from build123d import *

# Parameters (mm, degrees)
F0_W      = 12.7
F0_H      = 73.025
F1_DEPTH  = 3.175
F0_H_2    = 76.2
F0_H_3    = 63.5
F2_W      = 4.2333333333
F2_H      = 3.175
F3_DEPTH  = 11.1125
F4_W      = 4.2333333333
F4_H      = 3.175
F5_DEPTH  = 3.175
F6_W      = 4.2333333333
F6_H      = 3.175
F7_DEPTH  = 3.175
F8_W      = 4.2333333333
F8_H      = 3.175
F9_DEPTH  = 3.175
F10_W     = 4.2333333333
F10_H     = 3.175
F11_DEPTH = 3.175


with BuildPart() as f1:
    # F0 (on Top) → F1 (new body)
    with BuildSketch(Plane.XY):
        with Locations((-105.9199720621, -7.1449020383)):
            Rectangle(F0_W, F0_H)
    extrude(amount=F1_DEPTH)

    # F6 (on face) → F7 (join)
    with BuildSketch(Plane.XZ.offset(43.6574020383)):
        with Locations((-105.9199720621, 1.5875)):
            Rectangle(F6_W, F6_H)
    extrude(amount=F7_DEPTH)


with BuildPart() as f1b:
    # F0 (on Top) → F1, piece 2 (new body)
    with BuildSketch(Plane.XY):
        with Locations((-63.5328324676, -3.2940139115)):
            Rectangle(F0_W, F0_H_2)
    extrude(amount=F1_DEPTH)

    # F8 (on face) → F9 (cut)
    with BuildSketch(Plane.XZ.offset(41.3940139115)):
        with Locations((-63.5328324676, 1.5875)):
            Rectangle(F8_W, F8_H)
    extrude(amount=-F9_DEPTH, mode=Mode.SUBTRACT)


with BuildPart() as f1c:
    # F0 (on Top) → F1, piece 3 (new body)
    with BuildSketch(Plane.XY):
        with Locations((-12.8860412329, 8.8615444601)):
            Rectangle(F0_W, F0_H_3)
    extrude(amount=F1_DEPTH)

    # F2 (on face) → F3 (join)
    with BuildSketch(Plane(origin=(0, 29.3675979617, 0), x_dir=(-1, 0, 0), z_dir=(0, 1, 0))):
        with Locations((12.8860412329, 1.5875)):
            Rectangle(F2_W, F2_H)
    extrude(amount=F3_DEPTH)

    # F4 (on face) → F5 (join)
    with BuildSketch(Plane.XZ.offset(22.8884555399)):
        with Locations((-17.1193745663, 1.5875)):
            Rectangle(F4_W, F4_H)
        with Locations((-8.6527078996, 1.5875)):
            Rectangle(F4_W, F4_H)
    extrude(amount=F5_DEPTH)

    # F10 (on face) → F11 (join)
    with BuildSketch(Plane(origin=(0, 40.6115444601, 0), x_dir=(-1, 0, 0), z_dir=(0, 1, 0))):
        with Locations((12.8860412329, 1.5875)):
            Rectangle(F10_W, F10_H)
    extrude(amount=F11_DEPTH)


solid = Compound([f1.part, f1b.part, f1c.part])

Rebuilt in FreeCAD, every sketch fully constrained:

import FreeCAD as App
import Part
import Sketcher
Q = App.Units.Quantity


def add_polygon(sketch, points):
    """Adds a closed chain of lines whose ends are joined by coincident constraints."""
    first, n = sketch.GeometryCount, len(points)
    for a, b in zip(points, points[1:] + points[:1]):
        sketch.addGeometry(Part.LineSegment(App.Vector(*a, 0), App.Vector(*b, 0)), False)
    for i in range(n):
        sketch.addConstraint(Sketcher.Constraint("Coincident", first + i, 2, first + (i + 1) % n, 1))

doc = App.newDocument("Part")
params = doc.addObject("Spreadsheet::Sheet", "Params")
for row, (alias, value) in enumerate([
    ("sketch1_width", "0.5 in"),
    ("sketch1_height", "2.875 in"),
    ("pad1_length", "0.125 in"),
    ("sketch2_height", "0.125 in"),
    ("pad2_length", "0.125 in"),
    ("sketch3_height", "3 in"),
    ("sketch3_width", "0.5 in"),
    ("pad3_length", "0.125 in"),
    ("sketch4_height", "0.125 in"),
    ("pocket1_length", "0.125 in"),
    ("sketch5_width", "0.5 in"),
    ("sketch5_height", "2.5 in"),
    ("pad4_length", "0.125 in"),
    ("sketch6_height", "0.125 in"),
    ("pad5_length", "0.4375 in"),
    ("sketch7_height", "0.125 in"),
    ("pad6_length", "0.125 in"),
    ("sketch8_height", "0.125 in"),
    ("pad7_length", "0.125 in"),
], start=1):
    params.set(f"A{row}", alias)
    params.set(f"B{row}", "=" + value)
    params.setAlias(f"B{row}", alias)

body = doc.addObject("PartDesign::Body", "Body")

# Sketch on XY plane
sketch1 = doc.addObject("Sketcher::SketchObject", "Sketch")
body.addObject(sketch1)
sketch1.AttachmentSupport = (doc.XY_Plane, [""])
sketch1.MapMode = "FlatFace"
add_polygon(sketch1, [(-112, 29), (-112, -44), (-100, -44), (-100, 29)])  # lines 0-3
sketch1.addConstraint(Sketcher.Constraint("Vertical", 0))
sketch1.addConstraint(Sketcher.Constraint("Horizontal", 1))
sketch1.addConstraint(Sketcher.Constraint("Vertical", 2))
sketch1.addConstraint(Sketcher.Constraint("Horizontal", 3))
sketch1.addConstraint(Sketcher.Constraint("DistanceX", 1, 1, 1, 2, Q("0.5 in")))
sketch1.addConstraint(Sketcher.Constraint("DistanceY", 0, 2, 0, 1, Q("2.875 in")))
sketch1.addConstraint(Sketcher.Constraint("DistanceX", 0, 2, -1, 1, Q("112.269972 mm")))
sketch1.addConstraint(Sketcher.Constraint("DistanceY", 0, 2, -1, 1, Q("43.657402 mm")))
sketch1.setExpression("Constraints[8]", "Params.sketch1_width")
sketch1.setExpression("Constraints[9]", "Params.sketch1_height")
pad1 = doc.addObject("PartDesign::Pad", "Pad")
body.addObject(pad1)
pad1.Profile = sketch1
pad1.setExpression("Length", "Params.pad1_length")

# Sketch on XZ plane
sketch2 = doc.addObject("Sketcher::SketchObject", "Sketch001")
body.addObject(sketch2)
sketch2.AttachmentSupport = (doc.XZ_Plane, [""])
sketch2.MapMode = "FlatFace"
sketch2.AttachmentOffset = App.Placement(App.Vector(0, 0, 43.657402), App.Rotation())
add_polygon(sketch2, [(-108, 3.2), (-108, 0), (-103.8, 0), (-103.8, 3.2)])  # lines 0-3
sketch2.addConstraint(Sketcher.Constraint("Vertical", 0))
sketch2.addConstraint(Sketcher.Constraint("Horizontal", 1))
sketch2.addConstraint(Sketcher.Constraint("Vertical", 2))
sketch2.addConstraint(Sketcher.Constraint("Horizontal", 3))
sketch2.addConstraint(Sketcher.Constraint("PointOnObject", 0, 2, -1))
sketch2.addConstraint(Sketcher.Constraint("DistanceY", 0, 2, 0, 1, Q("0.125 in")))
sketch2.addConstraint(Sketcher.Constraint("DistanceX", 1, 1, 1, 2, Q("4.233333 mm")))
sketch2.addConstraint(Sketcher.Constraint("DistanceX", 0, 2, -1, 1, Q("108.036639 mm")))
sketch2.setExpression("Constraints[9]", "Params.sketch2_height")
pad2 = doc.addObject("PartDesign::Pad", "Pad001")
body.addObject(pad2)
pad2.Profile = sketch2
pad2.setExpression("Length", "Params.pad2_length")
body2 = doc.addObject("PartDesign::Body", "Body001")

# Sketch on XY plane
sketch3 = doc.addObject("Sketcher::SketchObject", "Sketch002")
body2.addObject(sketch3)
sketch3.AttachmentSupport = (doc.getObject("XY_Plane001"), [""])
sketch3.MapMode = "FlatFace"
add_polygon(sketch3, [(-70, 35), (-70, -41), (-57, -41), (-57, 35)])  # lines 0-3
sketch3.addConstraint(Sketcher.Constraint("Vertical", 0))
sketch3.addConstraint(Sketcher.Constraint("Horizontal", 1))
sketch3.addConstraint(Sketcher.Constraint("Vertical", 2))
sketch3.addConstraint(Sketcher.Constraint("Horizontal", 3))
sketch3.addConstraint(Sketcher.Constraint("DistanceY", 0, 2, 0, 1, Q("3 in")))
sketch3.addConstraint(Sketcher.Constraint("DistanceX", 1, 1, 1, 2, Q("0.5 in")))
sketch3.addConstraint(Sketcher.Constraint("DistanceX", 0, 2, -1, 1, Q("69.882832 mm")))
sketch3.addConstraint(Sketcher.Constraint("DistanceY", 0, 2, -1, 1, Q("41.394014 mm")))
sketch3.setExpression("Constraints[8]", "Params.sketch3_height")
sketch3.setExpression("Constraints[9]", "Params.sketch3_width")
pad3 = doc.addObject("PartDesign::Pad", "Pad002")
body2.addObject(pad3)
pad3.Profile = sketch3
pad3.setExpression("Length", "Params.pad3_length")

# Sketch on XZ plane
sketch4 = doc.addObject("Sketcher::SketchObject", "Sketch003")
body2.addObject(sketch4)
sketch4.AttachmentSupport = (doc.getObject("XZ_Plane001"), [""])
sketch4.MapMode = "FlatFace"
sketch4.AttachmentOffset = App.Placement(App.Vector(0, 0, 41.394014), App.Rotation())
add_polygon(sketch4, [(-65.6, 3.2), (-65.6, 0), (-61.4, 0), (-61.4, 3.2)])  # lines 0-3
sketch4.addConstraint(Sketcher.Constraint("Vertical", 0))
sketch4.addConstraint(Sketcher.Constraint("Horizontal", 1))
sketch4.addConstraint(Sketcher.Constraint("Vertical", 2))
sketch4.addConstraint(Sketcher.Constraint("Horizontal", 3))
sketch4.addConstraint(Sketcher.Constraint("PointOnObject", 0, 2, -1))
sketch4.addConstraint(Sketcher.Constraint("DistanceY", 0, 2, 0, 1, Q("0.125 in")))
sketch4.addConstraint(Sketcher.Constraint("DistanceX", 0, 2, -1, 1, Q("65.649499 mm")))
sketch4.addConstraint(Sketcher.Constraint("DistanceX", 1, 1, 1, 2, Q("4.233333 mm")))
sketch4.setExpression("Constraints[9]", "Params.sketch4_height")
pocket1 = doc.addObject("PartDesign::Pocket", "Pocket")
body2.addObject(pocket1)
pocket1.Profile = sketch4
pocket1.setExpression("Length", "Params.pocket1_length")
body3 = doc.addObject("PartDesign::Body", "Body002")

# Sketch on XY plane
sketch5 = doc.addObject("Sketcher::SketchObject", "Sketch004")
body3.addObject(sketch5)
sketch5.AttachmentSupport = (doc.getObject("XY_Plane002"), [""])
sketch5.MapMode = "FlatFace"
add_polygon(sketch5, [(-19, 41), (-19, -23), (-7, -23), (-7, 41)])  # lines 0-3
sketch5.addConstraint(Sketcher.Constraint("Vertical", 0))
sketch5.addConstraint(Sketcher.Constraint("Horizontal", 1))
sketch5.addConstraint(Sketcher.Constraint("Vertical", 2))
sketch5.addConstraint(Sketcher.Constraint("Horizontal", 3))
sketch5.addConstraint(Sketcher.Constraint("DistanceX", 1, 1, 1, 2, Q("0.5 in")))
sketch5.addConstraint(Sketcher.Constraint("DistanceY", 0, 2, 0, 1, Q("2.5 in")))
sketch5.addConstraint(Sketcher.Constraint("DistanceX", 0, 2, -1, 1, Q("19.236041 mm")))
sketch5.addConstraint(Sketcher.Constraint("DistanceY", 0, 2, -1, 1, Q("22.888456 mm")))
sketch5.setExpression("Constraints[8]", "Params.sketch5_width")
sketch5.setExpression("Constraints[9]", "Params.sketch5_height")
pad4 = doc.addObject("PartDesign::Pad", "Pad003")
body3.addObject(pad4)
pad4.Profile = sketch5
pad4.setExpression("Length", "Params.pad4_length")

# Sketch on XZ plane
sketch6 = doc.addObject("Sketcher::SketchObject", "Sketch005")
body3.addObject(sketch6)
sketch6.AttachmentSupport = (doc.getObject("XZ_Plane002"), [""])
sketch6.MapMode = "FlatFace"
sketch6.AttachmentOffset = App.Placement(App.Vector(0, 0, -29.367598), App.Rotation())
add_polygon(sketch6, [(-10.8, 3.2), (-10.8, 0), (-15, 0), (-15, 3.2)])  # lines 0-3
sketch6.addConstraint(Sketcher.Constraint("Vertical", 0))
sketch6.addConstraint(Sketcher.Constraint("Horizontal", 1))
sketch6.addConstraint(Sketcher.Constraint("Vertical", 2))
sketch6.addConstraint(Sketcher.Constraint("Horizontal", 3))
sketch6.addConstraint(Sketcher.Constraint("PointOnObject", 0, 2, -1))
sketch6.addConstraint(Sketcher.Constraint("DistanceY", 0, 2, 0, 1, Q("0.125 in")))
sketch6.addConstraint(Sketcher.Constraint("DistanceX", 1, 2, 1, 1, Q("4.233333 mm")))
sketch6.addConstraint(Sketcher.Constraint("DistanceX", 0, 2, -1, 1, Q("10.769375 mm")))
sketch6.setExpression("Constraints[9]", "Params.sketch6_height")
pad5 = doc.addObject("PartDesign::Pad", "Pad004")
body3.addObject(pad5)
pad5.Profile = sketch6
pad5.setExpression("Length", "Params.pad5_length")
pad5.Reversed = True

# Sketch on XZ plane
sketch7 = doc.addObject("Sketcher::SketchObject", "Sketch006")
body3.addObject(sketch7)
sketch7.AttachmentSupport = (doc.getObject("XZ_Plane002"), [""])
sketch7.MapMode = "FlatFace"
sketch7.AttachmentOffset = App.Placement(App.Vector(0, 0, 22.888456), App.Rotation())
add_polygon(sketch7, [(-19.2, 3.2), (-19.2, 0), (-15, 0), (-15, 3.2)])  # lines 0-3
add_polygon(sketch7, [(-10.8, 3.2), (-10.8, 0), (-6.5, 0), (-6.5, 3.2)])  # lines 4-7
sketch7.addConstraint(Sketcher.Constraint("Vertical", 0))
sketch7.addConstraint(Sketcher.Constraint("Horizontal", 1))
sketch7.addConstraint(Sketcher.Constraint("Vertical", 2))
sketch7.addConstraint(Sketcher.Constraint("Horizontal", 3))
sketch7.addConstraint(Sketcher.Constraint("Vertical", 4))
sketch7.addConstraint(Sketcher.Constraint("Horizontal", 5))
sketch7.addConstraint(Sketcher.Constraint("Vertical", 6))
sketch7.addConstraint(Sketcher.Constraint("Horizontal", 7))
sketch7.addConstraint(Sketcher.Constraint("PointOnObject", 0, 2, -1))
sketch7.addConstraint(Sketcher.Constraint("PointOnObject", 4, 2, -1))
sketch7.addConstraint(Sketcher.Constraint("Horizontal", 3, 2, 6, 2))
sketch7.addConstraint(Sketcher.Constraint("Equal", 3, 5))
sketch7.addConstraint(Sketcher.Constraint("DistanceX", 0, 2, 5, 2, Q("0.5 in")))
sketch7.addConstraint(Sketcher.Constraint("DistanceY", 0, 2, 0, 1, Q("0.125 in")))
sketch7.addConstraint(Sketcher.Constraint("DistanceX", 1, 1, 1, 2, Q("4.233333 mm")))
sketch7.addConstraint(Sketcher.Constraint("DistanceX", 0, 2, -1, 1, Q("19.236041 mm")))
sketch7.setExpression("Constraints[21]", "Params.sketch7_height")
pad6 = doc.addObject("PartDesign::Pad", "Pad005")
body3.addObject(pad6)
pad6.Profile = sketch7
pad6.setExpression("Length", "Params.pad6_length")

# Sketch on XZ plane
sketch8 = doc.addObject("Sketcher::SketchObject", "Sketch007")
body3.addObject(sketch8)
sketch8.AttachmentSupport = (doc.getObject("XZ_Plane002"), [""])
sketch8.MapMode = "FlatFace"
sketch8.AttachmentOffset = App.Placement(App.Vector(0, 0, -40.611544), App.Rotation())
add_polygon(sketch8, [(-10.8, 3.2), (-10.8, 0), (-15, 0), (-15, 3.2)])  # lines 0-3
sketch8.addConstraint(Sketcher.Constraint("Vertical", 0))
sketch8.addConstraint(Sketcher.Constraint("Horizontal", 1))
sketch8.addConstraint(Sketcher.Constraint("Vertical", 2))
sketch8.addConstraint(Sketcher.Constraint("Horizontal", 3))
sketch8.addConstraint(Sketcher.Constraint("PointOnObject", 0, 2, -1))
sketch8.addConstraint(Sketcher.Constraint("DistanceY", 0, 2, 0, 1, Q("0.125 in")))
sketch8.addConstraint(Sketcher.Constraint("DistanceX", 1, 2, 1, 1, Q("4.233333 mm")))
sketch8.addConstraint(Sketcher.Constraint("DistanceX", 0, 2, -1, 1, Q("10.769375 mm")))
sketch8.setExpression("Constraints[9]", "Params.sketch8_height")
pad7 = doc.addObject("PartDesign::Pad", "Pad006")
body3.addObject(pad7)
pad7.Profile = sketch8
pad7.setExpression("Length", "Params.pad7_length")
pad7.Reversed = True

doc.recompute()
